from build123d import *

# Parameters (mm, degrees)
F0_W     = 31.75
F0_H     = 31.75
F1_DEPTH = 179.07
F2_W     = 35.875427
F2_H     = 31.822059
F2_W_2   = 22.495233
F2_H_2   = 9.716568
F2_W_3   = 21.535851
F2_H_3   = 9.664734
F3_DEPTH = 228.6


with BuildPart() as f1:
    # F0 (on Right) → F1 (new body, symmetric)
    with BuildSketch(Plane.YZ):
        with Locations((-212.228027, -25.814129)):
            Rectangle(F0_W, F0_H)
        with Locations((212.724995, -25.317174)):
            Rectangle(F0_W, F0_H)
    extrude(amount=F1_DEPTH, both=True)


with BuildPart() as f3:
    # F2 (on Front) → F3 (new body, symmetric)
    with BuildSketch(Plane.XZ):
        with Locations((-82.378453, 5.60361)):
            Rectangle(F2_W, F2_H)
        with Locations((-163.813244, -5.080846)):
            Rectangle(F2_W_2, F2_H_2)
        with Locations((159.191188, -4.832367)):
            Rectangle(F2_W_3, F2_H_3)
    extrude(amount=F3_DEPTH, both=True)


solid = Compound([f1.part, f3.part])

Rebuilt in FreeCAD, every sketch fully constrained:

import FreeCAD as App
import Part
import Sketcher
from FreeCAD import Vector
Q = App.Units.Quantity

doc = App.newDocument("Part")
body = doc.addObject("PartDesign::Body", "Body")
body.AllowCompound = True

# Sketch on YZ plane
sketch1 = body.newObject("Sketcher::SketchObject", "Sketch")
sketch1.AttachmentSupport = (doc.getObject("YZ_Plane"), [""])
sketch1.MapMode = "FlatFace"
sketch1.addGeometry([
    Part.LineSegment(Vector(-228, -10, 0), Vector(-228, -42, 0)),  # 0
    Part.LineSegment(Vector(-228, -42, 0), Vector(-196, -42, 0)),  # 1
    Part.LineSegment(Vector(-196, -42, 0), Vector(-196, -10, 0)),  # 2
    Part.LineSegment(Vector(-196, -10, 0), Vector(-228, -10, 0)),  # 3
    Part.LineSegment(Vector(197, -9, 0), Vector(197, -41, 0)),  # 4
    Part.LineSegment(Vector(197, -41, 0), Vector(229, -41, 0)),  # 5
    Part.LineSegment(Vector(229, -41, 0), Vector(229, -9, 0)),  # 6
    Part.LineSegment(Vector(229, -9, 0), Vector(197, -9, 0)),  # 7
], False)
sketch1.addConstraint([
    Sketcher.Constraint("Coincident", 0, 2, 1, 1),
    Sketcher.Constraint("Coincident", 1, 2, 2, 1),
    Sketcher.Constraint("Coincident", 2, 2, 3, 1),
    Sketcher.Constraint("Coincident", 3, 2, 0, 1),
    Sketcher.Constraint("Coincident", 4, 2, 5, 1),
    Sketcher.Constraint("Coincident", 5, 2, 6, 1),
    Sketcher.Constraint("Coincident", 6, 2, 7, 1),
    Sketcher.Constraint("Coincident", 7, 2, 4, 1),
    Sketcher.Constraint("Vertical", 0),
    Sketcher.Constraint("Horizontal", 1),
    Sketcher.Constraint("Vertical", 2),
    Sketcher.Constraint("Horizontal", 3),
    Sketcher.Constraint("Vertical", 4),
    Sketcher.Constraint("Horizontal", 5),
    Sketcher.Constraint("Vertical", 6),
    Sketcher.Constraint("Horizontal", 7),
    Sketcher.Constraint("Equal", 3, 5),
    Sketcher.Constraint("Equal", 7, 0),
    Sketcher.Constraint("Equal", 2, 4),
    Sketcher.Constraint("DistanceX", -1, 1, 5, 2, Q("8.9999998 in")),
    Sketcher.Constraint("DistanceX", 1, 1, 1, 2, Q("1.25 in")),
    Sketcher.Constraint("DistanceY", 0, 2, -1, 1, 41.689129),
    Sketcher.Constraint("DistanceX", 0, 2, -1, 1, 228.103027),
    Sketcher.Constraint("DistanceY", 4, 2, -1, 1, 41.192174),
])
pad1 = body.newObject("PartDesign::Pad", "Pad")
pad1.Profile = sketch1
pad1.Length = Q("14.1 in")
pad1.Midplane = True
body2 = doc.addObject("PartDesign::Body", "Body001")
body2.AllowCompound = True

# Sketch on XZ plane
sketch2 = body2.newObject("Sketcher::SketchObject", "Sketch001")
sketch2.AttachmentSupport = (doc.getObject("XZ_Plane001"), [""])
sketch2.MapMode = "FlatFace"
sketch2.addGeometry([
    Part.LineSegment(Vector(-100, 22, 0), Vector(-100, -10, 0)),  # 0
    Part.LineSegment(Vector(-100, -10, 0), Vector(-64, -10, 0)),  # 1
    Part.LineSegment(Vector(-64, -10, 0), Vector(-64, 22, 0)),  # 2
    Part.LineSegment(Vector(-64, 22, 0), Vector(-100, 22, 0)),  # 3
    Part.LineSegment(Vector(-175, 0, 0), Vector(-175, -10, 0)),  # 4
    Part.LineSegment(Vector(-175, -10, 0), Vector(-153, -10, 0)),  # 5
    Part.LineSegment(Vector(-153, -10, 0), Vector(-153, 0, 0)),  # 6
    Part.LineSegment(Vector(-153, 0, 0), Vector(-175, 0, 0)),  # 7
    Part.LineSegment(Vector(148, 0, 0), Vector(148, -10, 0)),  # 8
    Part.LineSegment(Vector(148, -10, 0), Vector(170, -10, 0)),  # 9
    Part.LineSegment(Vector(170, -10, 0), Vector(170, 0, 0)),  # 10
    Part.LineSegment(Vector(170, 0, 0), Vector(148, 0, 0)),  # 11
], False)
sketch2.addConstraint([
    Sketcher.Constraint("Coincident", 0, 2, 1, 1),
    Sketcher.Constraint("Coincident", 1, 2, 2, 1),
    Sketcher.Constraint("Coincident", 2, 2, 3, 1),
    Sketcher.Constraint("Coincident", 3, 2, 0, 1),
    Sketcher.Constraint("Coincident", 4, 2, 5, 1),
    Sketcher.Constraint("Coincident", 5, 2, 6, 1),
    Sketcher.Constraint("Coincident", 6, 2, 7, 1),
    Sketcher.Constraint("Coincident", 7, 2, 4, 1),
    Sketcher.Constraint("Coincident", 8, 2, 9, 1),
    Sketcher.Constraint("Coincident", 9, 2, 10, 1),
    Sketcher.Constraint("Coincident", 10, 2, 11, 1),
    Sketcher.Constraint("Coincident", 11, 2, 8, 1),
    Sketcher.Constraint("Vertical", 0),
    Sketcher.Constraint("Horizontal", 1),
    Sketcher.Constraint("Vertical", 2),
    Sketcher.Constraint("Horizontal", 3),
    Sketcher.Constraint("Vertical", 4),
    Sketcher.Constraint("Horizontal", 5),
    Sketcher.Constraint("Vertical", 6),
    Sketcher.Constraint("Horizontal", 7),
    Sketcher.Constraint("Vertical", 8),
    Sketcher.Constraint("Horizontal", 9),
    Sketcher.Constraint("Vertical", 10),
    Sketcher.Constraint("Horizontal", 11),
    Sketcher.Constraint("PointOnObject", 10, 2, -1),
    Sketcher.Constraint("DistanceX", 9, 1, 9, 2, 21.535851),
    Sketcher.Constraint("DistanceY", 0, 2, 0, 1, 31.822059),
    Sketcher.Constraint("DistanceY", 6, 2, 3, 2, 21.737202),
    Sketcher.Constraint("DistanceX", 1, 2, 8, 2, 212.864002),
    Sketcher.Constraint("DistanceX", 1, 1, 1, 2, 35.875427),
    Sketcher.Constraint("DistanceX", 5, 1, 5, 2, 22.495233),
    Sketcher.Constraint("DistanceY", 4, 2, 4, 1, 9.716568),
    Sketcher.Constraint("DistanceY", 8, 2, 8, 1, 9.664734),
    Sketcher.Constraint("DistanceY", 0, 2, -1, 1, 10.307419),
    Sketcher.Constraint("DistanceX", 1, 2, -1, 1, 64.44074),
    Sketcher.Constraint("DistanceX", 4, 2, -1, 1, 175.06086),
])
pad2 = body2.newObject("PartDesign::Pad", "Pad001")
pad2.Profile = sketch2
pad2.Length = Q("18 in")
pad2.Midplane = True

doc.recompute()
